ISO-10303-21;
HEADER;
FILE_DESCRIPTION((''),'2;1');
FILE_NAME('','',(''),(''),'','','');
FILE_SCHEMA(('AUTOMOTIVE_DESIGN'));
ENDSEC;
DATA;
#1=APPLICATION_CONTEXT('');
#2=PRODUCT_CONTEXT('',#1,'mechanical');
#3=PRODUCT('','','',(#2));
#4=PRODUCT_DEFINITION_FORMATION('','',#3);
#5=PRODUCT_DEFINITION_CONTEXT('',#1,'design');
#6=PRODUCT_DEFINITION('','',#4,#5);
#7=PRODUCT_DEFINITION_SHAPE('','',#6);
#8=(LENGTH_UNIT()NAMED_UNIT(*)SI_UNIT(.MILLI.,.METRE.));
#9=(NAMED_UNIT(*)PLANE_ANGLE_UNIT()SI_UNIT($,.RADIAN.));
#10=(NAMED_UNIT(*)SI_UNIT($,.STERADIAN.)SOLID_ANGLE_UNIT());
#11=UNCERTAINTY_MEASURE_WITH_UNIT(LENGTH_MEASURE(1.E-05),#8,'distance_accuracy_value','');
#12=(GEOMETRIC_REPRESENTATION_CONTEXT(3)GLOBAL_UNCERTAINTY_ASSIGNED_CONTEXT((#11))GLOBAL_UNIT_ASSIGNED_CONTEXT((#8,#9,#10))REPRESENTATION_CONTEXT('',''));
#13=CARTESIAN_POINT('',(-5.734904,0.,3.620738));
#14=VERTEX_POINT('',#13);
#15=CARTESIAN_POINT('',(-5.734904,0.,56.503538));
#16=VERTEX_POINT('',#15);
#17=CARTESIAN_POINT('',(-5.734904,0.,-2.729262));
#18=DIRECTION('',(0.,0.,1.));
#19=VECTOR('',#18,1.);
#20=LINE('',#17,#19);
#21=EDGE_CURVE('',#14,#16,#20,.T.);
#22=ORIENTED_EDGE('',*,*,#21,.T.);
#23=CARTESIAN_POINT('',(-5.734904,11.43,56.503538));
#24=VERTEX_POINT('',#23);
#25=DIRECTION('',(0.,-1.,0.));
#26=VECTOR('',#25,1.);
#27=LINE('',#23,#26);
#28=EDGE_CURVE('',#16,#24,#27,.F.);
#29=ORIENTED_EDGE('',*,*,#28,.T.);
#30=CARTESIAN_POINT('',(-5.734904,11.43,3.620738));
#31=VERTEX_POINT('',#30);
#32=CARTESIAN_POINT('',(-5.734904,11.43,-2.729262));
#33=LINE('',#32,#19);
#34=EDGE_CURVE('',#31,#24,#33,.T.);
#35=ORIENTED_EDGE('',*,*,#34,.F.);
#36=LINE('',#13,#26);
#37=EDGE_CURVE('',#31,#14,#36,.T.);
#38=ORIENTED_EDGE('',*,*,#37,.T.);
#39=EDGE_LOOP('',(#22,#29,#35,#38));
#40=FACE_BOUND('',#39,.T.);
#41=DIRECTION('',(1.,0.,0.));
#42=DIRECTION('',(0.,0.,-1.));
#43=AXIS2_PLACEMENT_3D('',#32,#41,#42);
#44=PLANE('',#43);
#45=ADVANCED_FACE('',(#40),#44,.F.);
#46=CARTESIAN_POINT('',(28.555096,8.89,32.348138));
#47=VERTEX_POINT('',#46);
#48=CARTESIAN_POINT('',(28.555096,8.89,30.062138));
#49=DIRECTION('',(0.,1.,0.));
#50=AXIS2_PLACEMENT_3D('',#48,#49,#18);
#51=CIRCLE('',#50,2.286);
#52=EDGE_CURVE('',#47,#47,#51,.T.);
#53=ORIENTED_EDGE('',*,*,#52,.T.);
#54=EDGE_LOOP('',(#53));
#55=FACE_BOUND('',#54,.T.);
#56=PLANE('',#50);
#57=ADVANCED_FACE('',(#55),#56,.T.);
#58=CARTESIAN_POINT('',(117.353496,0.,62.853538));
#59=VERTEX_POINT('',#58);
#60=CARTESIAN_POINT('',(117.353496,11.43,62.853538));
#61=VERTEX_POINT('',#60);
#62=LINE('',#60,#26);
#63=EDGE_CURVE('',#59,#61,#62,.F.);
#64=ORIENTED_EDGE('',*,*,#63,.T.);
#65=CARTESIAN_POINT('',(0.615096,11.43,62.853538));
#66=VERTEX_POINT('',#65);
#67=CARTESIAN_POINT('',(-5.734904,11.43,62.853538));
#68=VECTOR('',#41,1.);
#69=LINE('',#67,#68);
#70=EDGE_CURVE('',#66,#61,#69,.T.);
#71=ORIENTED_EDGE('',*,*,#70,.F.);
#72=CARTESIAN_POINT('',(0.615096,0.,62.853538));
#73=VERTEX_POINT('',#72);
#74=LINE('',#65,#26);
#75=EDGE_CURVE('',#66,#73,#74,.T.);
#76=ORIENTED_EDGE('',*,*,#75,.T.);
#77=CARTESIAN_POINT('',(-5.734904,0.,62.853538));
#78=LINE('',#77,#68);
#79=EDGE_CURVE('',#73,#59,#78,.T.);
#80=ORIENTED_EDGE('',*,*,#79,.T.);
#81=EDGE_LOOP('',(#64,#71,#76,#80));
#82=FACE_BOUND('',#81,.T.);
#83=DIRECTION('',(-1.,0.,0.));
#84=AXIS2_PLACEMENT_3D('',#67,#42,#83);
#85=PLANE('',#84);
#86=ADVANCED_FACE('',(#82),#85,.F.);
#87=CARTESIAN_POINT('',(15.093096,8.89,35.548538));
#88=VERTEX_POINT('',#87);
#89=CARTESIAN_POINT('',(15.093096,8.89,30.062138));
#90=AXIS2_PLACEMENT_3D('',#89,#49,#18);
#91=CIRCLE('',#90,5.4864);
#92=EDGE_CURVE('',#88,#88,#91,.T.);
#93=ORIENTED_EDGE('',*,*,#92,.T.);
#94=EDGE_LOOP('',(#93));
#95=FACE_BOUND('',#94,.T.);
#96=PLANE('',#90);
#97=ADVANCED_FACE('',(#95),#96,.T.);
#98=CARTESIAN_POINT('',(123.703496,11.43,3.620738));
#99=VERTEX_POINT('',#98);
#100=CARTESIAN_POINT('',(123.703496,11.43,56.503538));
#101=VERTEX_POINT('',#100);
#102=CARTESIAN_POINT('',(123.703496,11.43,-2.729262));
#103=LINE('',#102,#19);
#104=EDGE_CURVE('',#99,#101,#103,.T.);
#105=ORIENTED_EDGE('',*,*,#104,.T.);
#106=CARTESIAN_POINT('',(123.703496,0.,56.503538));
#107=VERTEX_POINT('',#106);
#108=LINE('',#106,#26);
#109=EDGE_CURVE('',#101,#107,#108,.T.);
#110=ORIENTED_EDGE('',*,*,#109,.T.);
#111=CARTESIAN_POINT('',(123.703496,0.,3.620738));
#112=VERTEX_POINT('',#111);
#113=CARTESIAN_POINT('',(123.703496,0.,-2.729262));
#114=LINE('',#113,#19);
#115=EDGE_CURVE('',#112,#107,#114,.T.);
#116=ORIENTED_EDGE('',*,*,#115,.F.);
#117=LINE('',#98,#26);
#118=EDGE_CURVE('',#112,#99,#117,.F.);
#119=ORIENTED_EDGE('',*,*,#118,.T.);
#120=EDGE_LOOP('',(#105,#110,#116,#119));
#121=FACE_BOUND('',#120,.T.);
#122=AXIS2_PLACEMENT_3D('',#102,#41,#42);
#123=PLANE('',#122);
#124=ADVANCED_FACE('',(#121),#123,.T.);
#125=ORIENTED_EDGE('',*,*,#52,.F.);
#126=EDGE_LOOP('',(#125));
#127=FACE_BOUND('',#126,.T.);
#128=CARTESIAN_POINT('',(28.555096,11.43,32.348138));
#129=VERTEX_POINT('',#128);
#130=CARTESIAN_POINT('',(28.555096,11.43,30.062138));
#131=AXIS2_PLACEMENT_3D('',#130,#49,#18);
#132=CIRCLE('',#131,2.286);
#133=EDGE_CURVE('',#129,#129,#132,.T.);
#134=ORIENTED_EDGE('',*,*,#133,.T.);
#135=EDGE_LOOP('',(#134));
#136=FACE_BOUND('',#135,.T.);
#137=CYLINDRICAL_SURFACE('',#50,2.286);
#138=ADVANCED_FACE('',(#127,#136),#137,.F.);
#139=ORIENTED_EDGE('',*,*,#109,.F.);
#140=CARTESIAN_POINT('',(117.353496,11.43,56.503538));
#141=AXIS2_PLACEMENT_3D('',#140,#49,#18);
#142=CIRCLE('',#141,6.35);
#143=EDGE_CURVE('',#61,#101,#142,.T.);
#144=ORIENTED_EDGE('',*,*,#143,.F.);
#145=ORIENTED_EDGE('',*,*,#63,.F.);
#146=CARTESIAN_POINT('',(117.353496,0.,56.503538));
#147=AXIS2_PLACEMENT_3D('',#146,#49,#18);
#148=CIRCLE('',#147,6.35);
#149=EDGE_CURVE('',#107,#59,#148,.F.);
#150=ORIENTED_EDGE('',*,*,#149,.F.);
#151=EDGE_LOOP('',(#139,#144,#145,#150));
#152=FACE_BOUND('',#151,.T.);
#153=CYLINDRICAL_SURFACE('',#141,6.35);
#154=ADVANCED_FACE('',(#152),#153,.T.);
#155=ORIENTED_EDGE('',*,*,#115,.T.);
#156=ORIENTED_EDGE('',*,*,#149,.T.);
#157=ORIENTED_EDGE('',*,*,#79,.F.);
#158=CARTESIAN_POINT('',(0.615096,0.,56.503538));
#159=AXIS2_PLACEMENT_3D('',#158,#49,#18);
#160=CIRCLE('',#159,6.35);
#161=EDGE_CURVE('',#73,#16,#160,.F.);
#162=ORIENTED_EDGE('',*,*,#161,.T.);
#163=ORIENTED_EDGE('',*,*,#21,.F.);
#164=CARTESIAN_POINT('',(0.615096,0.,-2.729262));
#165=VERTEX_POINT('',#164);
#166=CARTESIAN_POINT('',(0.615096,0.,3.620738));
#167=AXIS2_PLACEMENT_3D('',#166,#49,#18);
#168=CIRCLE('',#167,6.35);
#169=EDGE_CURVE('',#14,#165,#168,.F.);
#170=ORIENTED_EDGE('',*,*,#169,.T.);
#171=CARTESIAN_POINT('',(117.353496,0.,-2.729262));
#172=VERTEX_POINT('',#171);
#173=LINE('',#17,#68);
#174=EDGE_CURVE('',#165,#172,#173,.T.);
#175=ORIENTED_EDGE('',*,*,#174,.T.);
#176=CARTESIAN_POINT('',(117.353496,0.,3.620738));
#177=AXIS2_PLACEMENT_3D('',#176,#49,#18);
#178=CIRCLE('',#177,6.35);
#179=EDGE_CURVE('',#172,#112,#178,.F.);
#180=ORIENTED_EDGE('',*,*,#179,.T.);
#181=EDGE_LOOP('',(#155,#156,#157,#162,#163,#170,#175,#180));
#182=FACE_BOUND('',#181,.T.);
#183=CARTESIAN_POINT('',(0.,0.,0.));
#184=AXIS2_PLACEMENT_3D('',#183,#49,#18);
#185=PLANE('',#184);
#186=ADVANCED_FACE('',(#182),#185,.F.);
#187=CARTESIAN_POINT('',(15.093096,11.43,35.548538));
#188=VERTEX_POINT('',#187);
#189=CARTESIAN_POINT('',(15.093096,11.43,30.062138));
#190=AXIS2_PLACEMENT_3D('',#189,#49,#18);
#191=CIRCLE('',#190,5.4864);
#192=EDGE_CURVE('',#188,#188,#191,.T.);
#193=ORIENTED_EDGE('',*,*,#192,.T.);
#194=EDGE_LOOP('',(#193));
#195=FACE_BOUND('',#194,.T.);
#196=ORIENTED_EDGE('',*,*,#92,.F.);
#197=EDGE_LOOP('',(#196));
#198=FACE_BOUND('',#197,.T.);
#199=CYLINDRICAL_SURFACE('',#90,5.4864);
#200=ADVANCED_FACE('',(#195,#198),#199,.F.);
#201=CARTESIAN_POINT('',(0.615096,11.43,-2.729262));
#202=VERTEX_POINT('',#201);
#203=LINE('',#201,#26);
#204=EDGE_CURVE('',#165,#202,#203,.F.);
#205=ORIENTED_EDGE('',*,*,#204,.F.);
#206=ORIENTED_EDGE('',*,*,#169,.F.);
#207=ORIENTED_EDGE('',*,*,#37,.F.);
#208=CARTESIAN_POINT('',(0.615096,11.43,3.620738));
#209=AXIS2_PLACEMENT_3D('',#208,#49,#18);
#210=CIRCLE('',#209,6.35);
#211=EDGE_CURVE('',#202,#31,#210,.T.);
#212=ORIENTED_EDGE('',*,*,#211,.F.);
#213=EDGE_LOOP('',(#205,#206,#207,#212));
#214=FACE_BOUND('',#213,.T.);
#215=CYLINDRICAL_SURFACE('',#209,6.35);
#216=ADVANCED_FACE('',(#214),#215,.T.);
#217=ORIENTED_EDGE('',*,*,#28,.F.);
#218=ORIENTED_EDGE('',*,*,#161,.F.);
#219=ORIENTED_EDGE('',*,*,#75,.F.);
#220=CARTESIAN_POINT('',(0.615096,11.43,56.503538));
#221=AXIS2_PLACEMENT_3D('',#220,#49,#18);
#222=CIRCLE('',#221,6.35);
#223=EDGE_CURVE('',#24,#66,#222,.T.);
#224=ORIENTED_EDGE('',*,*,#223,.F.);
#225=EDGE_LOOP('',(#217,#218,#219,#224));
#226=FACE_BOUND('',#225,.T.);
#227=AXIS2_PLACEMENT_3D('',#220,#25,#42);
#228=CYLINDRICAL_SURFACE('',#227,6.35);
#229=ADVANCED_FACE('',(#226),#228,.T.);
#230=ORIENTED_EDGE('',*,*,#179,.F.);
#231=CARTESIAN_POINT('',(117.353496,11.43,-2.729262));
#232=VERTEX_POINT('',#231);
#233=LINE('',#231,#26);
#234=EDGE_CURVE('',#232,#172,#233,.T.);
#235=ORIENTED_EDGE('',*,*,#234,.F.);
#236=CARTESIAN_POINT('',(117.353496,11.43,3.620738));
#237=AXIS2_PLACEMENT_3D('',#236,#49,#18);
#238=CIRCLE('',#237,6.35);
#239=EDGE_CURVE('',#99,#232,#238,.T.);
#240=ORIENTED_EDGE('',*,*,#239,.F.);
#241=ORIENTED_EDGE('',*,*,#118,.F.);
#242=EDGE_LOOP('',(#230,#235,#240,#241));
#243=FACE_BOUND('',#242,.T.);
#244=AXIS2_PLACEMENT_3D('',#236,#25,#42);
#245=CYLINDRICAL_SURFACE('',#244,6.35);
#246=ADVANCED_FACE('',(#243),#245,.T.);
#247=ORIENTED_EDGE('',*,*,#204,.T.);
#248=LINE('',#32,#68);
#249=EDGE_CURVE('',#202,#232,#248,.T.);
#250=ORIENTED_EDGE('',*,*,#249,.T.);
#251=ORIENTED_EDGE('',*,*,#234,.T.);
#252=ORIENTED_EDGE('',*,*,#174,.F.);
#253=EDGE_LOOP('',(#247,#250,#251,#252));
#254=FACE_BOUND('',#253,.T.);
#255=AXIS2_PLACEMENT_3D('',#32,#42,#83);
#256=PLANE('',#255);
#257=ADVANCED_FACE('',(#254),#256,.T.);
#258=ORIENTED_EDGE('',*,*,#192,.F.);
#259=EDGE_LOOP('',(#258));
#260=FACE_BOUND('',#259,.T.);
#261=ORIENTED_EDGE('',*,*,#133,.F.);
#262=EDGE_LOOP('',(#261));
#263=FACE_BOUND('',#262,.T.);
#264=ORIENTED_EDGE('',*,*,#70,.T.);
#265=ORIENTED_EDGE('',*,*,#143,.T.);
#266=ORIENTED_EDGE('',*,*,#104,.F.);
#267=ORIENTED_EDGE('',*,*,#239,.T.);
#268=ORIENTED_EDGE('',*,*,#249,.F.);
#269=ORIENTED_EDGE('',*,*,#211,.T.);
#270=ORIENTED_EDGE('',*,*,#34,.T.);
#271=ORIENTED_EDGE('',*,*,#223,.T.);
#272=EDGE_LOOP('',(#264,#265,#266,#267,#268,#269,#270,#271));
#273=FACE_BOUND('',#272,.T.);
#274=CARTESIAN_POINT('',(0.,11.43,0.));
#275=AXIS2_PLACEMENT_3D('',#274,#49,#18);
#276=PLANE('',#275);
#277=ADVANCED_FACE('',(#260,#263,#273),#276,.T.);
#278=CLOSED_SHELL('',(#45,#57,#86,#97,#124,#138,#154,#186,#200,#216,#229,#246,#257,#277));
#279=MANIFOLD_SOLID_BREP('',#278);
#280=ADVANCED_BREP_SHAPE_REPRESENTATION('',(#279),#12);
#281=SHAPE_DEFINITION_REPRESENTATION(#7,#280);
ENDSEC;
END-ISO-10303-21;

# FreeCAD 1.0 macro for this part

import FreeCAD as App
import Part
import Sketcher
Q = App.Units.Quantity


def edges_at(feature, points):
    """Names of the edges that pass closest to the given points."""
    edges = feature.Shape.Edges
    near = lambda p: min(range(len(edges)), key=lambda i: edges[i].distToShape(Part.Vertex(*p))[0])
    return sorted({f"Edge{near(p) + 1}" for p in points})


def add_polygon(sketch, points):
    """Adds a closed chain of lines whose ends are joined by coincident constraints."""
    first, n = sketch.GeometryCount, len(points)
    for a, b in zip(points, points[1:] + points[:1]):
        sketch.addGeometry(Part.LineSegment(App.Vector(*a, 0), App.Vector(*b, 0)), False)
    for i in range(n):
        sketch.addConstraint(Sketcher.Constraint("Coincident", first + i, 2, first + (i + 1) % n, 1))

doc = App.newDocument("Part")
body = doc.addObject("PartDesign::Body", "Body")

# Sketch on XZ plane
sketch1 = body.newObject("Sketcher::SketchObject", "Sketch")
sketch1.AttachmentSupport = (doc.getObject("XZ_Plane"), [""])
sketch1.MapMode = "FlatFace"
add_polygon(sketch1, [(-6, -3), (-6, 63), (124, 63), (124, -3)])  # lines 0-3
sketch1.addConstraint(Sketcher.Constraint("Vertical", 0))
sketch1.addConstraint(Sketcher.Constraint("Horizontal", 1))
sketch1.addConstraint(Sketcher.Constraint("Vertical", 2))
sketch1.addConstraint(Sketcher.Constraint("Horizontal", 3))
sketch1.addConstraint(Sketcher.Constraint("DistanceX", 1, 1, 1, 2, Q("5.096 in")))
sketch1.addConstraint(Sketcher.Constraint("DistanceY", 0, 1, 0, 2, Q("2.582 in")))
sketch1.addConstraint(Sketcher.Constraint("DistanceY", -1, 1, 0, 2, 62.853538))
sketch1.addConstraint(Sketcher.Constraint("DistanceX", 0, 2, -1, 1, 5.734904))
pad1 = body.newObject("PartDesign::Pad", "Pad")
pad1.Profile = sketch1
pad1.Length = Q("0.45 in")
pad1.Reversed = True
doc.recompute()

fillet = body.newObject("PartDesign::Fillet", "Fillet")
fillet.Base = (pad1, edges_at(pad1, [
    (-5.735, 5.715, -2.729),
    (123.703, 5.715, -2.729),
    (123.703, 5.715, 62.854),
    (-5.735, 5.715, 62.854),
]))
fillet.Radius = Q("0.25 in")

# Sketch on XZ plane
sketch2 = body.newObject("Sketcher::SketchObject", "Sketch001")
sketch2.AttachmentSupport = (doc.getObject("XZ_Plane"), [""])
sketch2.MapMode = "FlatFace"
sketch2.AttachmentOffset = App.Placement(App.Vector(0, 0, -0.45 * 25.4), App.Rotation())
sketch2.addGeometry(Part.Circle(App.Vector(15.1, 30.1, 0), App.Vector(0, 0, 1), 5.5), False)
sketch2.addGeometry(Part.Circle(App.Vector(28.6, 30.1, 0), App.Vector(0, 0, 1), 2.3), False)
sketch2.addConstraint(Sketcher.Constraint("Horizontal", 0, 3, 1, 3))
sketch2.addConstraint(Sketcher.Constraint("Diameter", 1, Q("0.18 in")))
sketch2.addConstraint(Sketcher.Constraint("Diameter", 0, Q("0.432 in")))
sketch2.addConstraint(Sketcher.Constraint("DistanceX", 0, 3, 1, 3, Q("0.53 in")))
sketch2.addConstraint(Sketcher.Constraint("DistanceY", -1, 1, 0, 3, 30.062138))
sketch2.addConstraint(Sketcher.Constraint("DistanceX", -1, 1, 0, 3, 15.093096))
pocket1 = body.newObject("PartDesign::Pocket", "Pocket")
pocket1.Profile = sketch2
pocket1.Length = Q("0.1 in")
pocket1.Reversed = True

doc.recompute()
